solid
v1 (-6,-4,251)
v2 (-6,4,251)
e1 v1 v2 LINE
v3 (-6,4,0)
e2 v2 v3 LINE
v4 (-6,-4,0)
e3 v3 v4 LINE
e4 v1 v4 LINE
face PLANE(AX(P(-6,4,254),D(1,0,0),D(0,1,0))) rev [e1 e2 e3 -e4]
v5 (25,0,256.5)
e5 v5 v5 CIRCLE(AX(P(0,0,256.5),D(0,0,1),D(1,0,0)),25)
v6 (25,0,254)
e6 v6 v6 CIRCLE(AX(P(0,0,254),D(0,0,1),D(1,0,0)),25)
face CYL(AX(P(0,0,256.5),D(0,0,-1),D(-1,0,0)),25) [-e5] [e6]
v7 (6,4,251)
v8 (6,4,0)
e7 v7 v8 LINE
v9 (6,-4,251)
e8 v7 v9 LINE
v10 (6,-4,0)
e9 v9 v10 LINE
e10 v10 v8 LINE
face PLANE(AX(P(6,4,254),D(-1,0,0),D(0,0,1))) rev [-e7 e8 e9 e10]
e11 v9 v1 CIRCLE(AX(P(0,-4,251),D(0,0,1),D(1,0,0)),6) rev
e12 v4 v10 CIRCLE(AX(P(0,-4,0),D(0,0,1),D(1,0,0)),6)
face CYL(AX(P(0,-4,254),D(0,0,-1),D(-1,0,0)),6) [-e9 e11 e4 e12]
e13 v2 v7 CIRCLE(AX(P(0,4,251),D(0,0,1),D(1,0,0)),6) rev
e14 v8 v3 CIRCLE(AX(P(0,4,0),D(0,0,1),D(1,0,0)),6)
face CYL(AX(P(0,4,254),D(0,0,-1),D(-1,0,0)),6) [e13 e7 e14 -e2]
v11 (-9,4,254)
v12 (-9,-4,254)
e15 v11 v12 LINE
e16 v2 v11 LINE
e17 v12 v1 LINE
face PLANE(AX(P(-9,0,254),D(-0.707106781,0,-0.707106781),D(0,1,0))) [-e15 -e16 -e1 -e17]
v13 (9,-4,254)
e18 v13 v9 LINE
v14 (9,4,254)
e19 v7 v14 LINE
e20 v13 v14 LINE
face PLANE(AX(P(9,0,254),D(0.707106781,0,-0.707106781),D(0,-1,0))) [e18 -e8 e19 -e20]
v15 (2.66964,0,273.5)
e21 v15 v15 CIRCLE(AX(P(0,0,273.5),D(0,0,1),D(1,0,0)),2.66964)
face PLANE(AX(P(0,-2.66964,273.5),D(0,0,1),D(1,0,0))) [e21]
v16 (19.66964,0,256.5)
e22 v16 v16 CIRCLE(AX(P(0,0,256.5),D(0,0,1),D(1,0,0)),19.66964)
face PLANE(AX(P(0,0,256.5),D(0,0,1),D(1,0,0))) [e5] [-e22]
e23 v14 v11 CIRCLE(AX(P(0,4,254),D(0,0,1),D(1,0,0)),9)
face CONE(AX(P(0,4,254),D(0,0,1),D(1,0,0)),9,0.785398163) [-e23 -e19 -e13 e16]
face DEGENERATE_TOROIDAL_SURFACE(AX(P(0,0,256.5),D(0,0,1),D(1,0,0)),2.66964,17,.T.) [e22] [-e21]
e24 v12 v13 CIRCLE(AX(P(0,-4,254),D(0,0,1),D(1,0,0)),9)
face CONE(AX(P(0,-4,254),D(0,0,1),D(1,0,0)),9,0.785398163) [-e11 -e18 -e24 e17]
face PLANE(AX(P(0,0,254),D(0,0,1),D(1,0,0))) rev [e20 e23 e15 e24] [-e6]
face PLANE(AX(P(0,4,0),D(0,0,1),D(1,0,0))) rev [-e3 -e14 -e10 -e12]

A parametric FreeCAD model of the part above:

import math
import FreeCAD as App
import Part
import Sketcher


def edges_at(feature, points):
    """Names of the edges that pass closest to the given points."""
    edges = feature.Shape.Edges
    near = lambda p: min(range(len(edges)), key=lambda i: edges[i].distToShape(Part.Vertex(*p))[0])
    return sorted({f"Edge{near(p) + 1}" for p in points})

doc = App.newDocument("Part")
params = doc.addObject("Spreadsheet::Sheet", "Params")
for row, (alias, value) in enumerate([
    ("sketch1_radius", "6 mm"),
    ("sketch1_height", "8 mm"),
    ("pad1_length", "254 mm"),
    ("sketch2_diameter", "50 mm"),
    ("pad2_length", "2.5 mm"),
    ("chamfer_size", "3 mm"),
    ("sketch3_radius", "17 mm"),
    ("revolution_angle", "360 deg"),
], start=1):
    params.set(f"A{row}", alias)
    params.set(f"B{row}", "=" + value)
    params.setAlias(f"B{row}", alias)

body = doc.addObject("PartDesign::Body", "Body")

# Sketch on XY plane
sketch1 = body.newObject("Sketcher::SketchObject", "Sketch")
sketch1.AttachmentSupport = (doc.getObject("XY_Plane"), [""])
sketch1.MapMode = "FlatFace"
sketch1.addGeometry(Part.LineSegment(App.Vector(6, -4, 0), App.Vector(6, 4, 0)), False)
sketch1.addGeometry(Part.ArcOfCircle(Part.Circle(App.Vector(0, 4, 0), App.Vector(0, 0, 1), 6), math.radians(0), math.radians(180)), False)
sketch1.addGeometry(Part.LineSegment(App.Vector(-6, 4, 0), App.Vector(-6, -4, 0)), False)
sketch1.addGeometry(Part.ArcOfCircle(Part.Circle(App.Vector(0, -4, 0), App.Vector(0, 0, 1), 6), math.radians(180), math.radians(360)), False)
sketch1.addConstraint(Sketcher.Constraint("Tangent", 0, 2, 1, 1))
sketch1.addConstraint(Sketcher.Constraint("Tangent", 1, 2, 2, 1))
sketch1.addConstraint(Sketcher.Constraint("Tangent", 2, 2, 3, 1))
sketch1.addConstraint(Sketcher.Constraint("Tangent", 3, 2, 0, 1))
sketch1.addConstraint(Sketcher.Constraint("Vertical", 0))
sketch1.addConstraint(Sketcher.Constraint("Vertical", 2))
sketch1.addConstraint(Sketcher.Constraint("Symmetric", 1, 3, 3, 3, -1, 1))
sketch1.addConstraint(Sketcher.Constraint("Radius", 1, 6.0))
sketch1.addConstraint(Sketcher.Constraint("DistanceY", 0, 1, 0, 2, 8.0))
sketch1.setExpression("Constraints[7]", "Params.sketch1_radius")
sketch1.setExpression("Constraints[8]", "Params.sketch1_height")
pad1 = body.newObject("PartDesign::Pad", "Pad")
pad1.Profile = sketch1
pad1.setExpression("Length", "Params.pad1_length")

# Sketch on XY plane
sketch2 = body.newObject("Sketcher::SketchObject", "Sketch001")
sketch2.AttachmentSupport = (doc.getObject("XY_Plane"), [""])
sketch2.MapMode = "FlatFace"
sketch2.AttachmentOffset = App.Placement(App.Vector(0, 0, 254), App.Rotation())
sketch2.addGeometry(Part.Circle(App.Vector(0, 0, 0), App.Vector(0, 0, 1), 25), False)
sketch2.addConstraint(Sketcher.Constraint("Coincident", 0, 3, -1, 1))
sketch2.addConstraint(Sketcher.Constraint("Diameter", 0, 50.0))
sketch2.setExpression("Constraints[1]", "Params.sketch2_diameter")
pad2 = body.newObject("PartDesign::Pad", "Pad001")
pad2.Profile = sketch2
pad2.setExpression("Length", "Params.pad2_length")
doc.recompute()

chamfer = body.newObject("PartDesign::Chamfer", "Chamfer")
chamfer.Base = (pad2, edges_at(pad2, [
    (0, -10, 254),
    (6, 0, 254),
    (0, 10, 254),
    (-6, 0, 254),
]))
chamfer.setExpression("Size", "Params.chamfer_size")

# Sketch on YZ plane
sketch3 = body.newObject("Sketcher::SketchObject", "Sketch002")
sketch3.AttachmentSupport = (doc.getObject("YZ_Plane"), [""])
sketch3.MapMode = "FlatFace"
sketch3.addGeometry(Part.LineSegment(App.Vector(-19.66964, 256.5, 0), App.Vector(0, 256.5, 0)), False)
sketch3.addGeometry(Part.LineSegment(App.Vector(0, 256.5, 0), App.Vector(0, 273.5, 0)), False)
sketch3.addGeometry(Part.LineSegment(App.Vector(0, 273.5, 0), App.Vector(-2.66964, 273.5, 0)), False)
sketch3.addGeometry(Part.ArcOfCircle(Part.Circle(App.Vector(-2.66964, 256.5, 0), App.Vector(0, 0, 1), 17), math.radians(90), math.radians(180)), False)
sketch3.addConstraint(Sketcher.Constraint("Coincident", 0, 2, 1, 1))
sketch3.addConstraint(Sketcher.Constraint("Coincident", 1, 2, 2, 1))
sketch3.addConstraint(Sketcher.Constraint("Tangent", 2, 2, 3, 1))
sketch3.addConstraint(Sketcher.Constraint("Coincident", 3, 2, 0, 1))
sketch3.addConstraint(Sketcher.Constraint("Horizontal", 0))
sketch3.addConstraint(Sketcher.Constraint("Vertical", 1))
sketch3.addConstraint(Sketcher.Constraint("Horizontal", 2))
sketch3.addConstraint(Sketcher.Constraint("PointOnObject", 0, 2, -2))
sketch3.addConstraint(Sketcher.Constraint("Horizontal", 3, 3, 0, 2))
sketch3.addConstraint(Sketcher.Constraint("Radius", 3, 17.0))
sketch3.addConstraint(Sketcher.Constraint("DistanceY", -1, 1, 3, 3, 256.5))
sketch3.addConstraint(Sketcher.Constraint("DistanceX", 0, 1, 0, 2, 19.66964))
sketch3.setExpression("Constraints[9]", "Params.sketch3_radius")
revolution = body.newObject("PartDesign::Revolution", "Revolution")
revolution.Profile = sketch3
revolution.ReferenceAxis = (sketch3, ["V_Axis"])
revolution.setExpression("Angle", "Params.revolution_angle")

doc.recompute()
